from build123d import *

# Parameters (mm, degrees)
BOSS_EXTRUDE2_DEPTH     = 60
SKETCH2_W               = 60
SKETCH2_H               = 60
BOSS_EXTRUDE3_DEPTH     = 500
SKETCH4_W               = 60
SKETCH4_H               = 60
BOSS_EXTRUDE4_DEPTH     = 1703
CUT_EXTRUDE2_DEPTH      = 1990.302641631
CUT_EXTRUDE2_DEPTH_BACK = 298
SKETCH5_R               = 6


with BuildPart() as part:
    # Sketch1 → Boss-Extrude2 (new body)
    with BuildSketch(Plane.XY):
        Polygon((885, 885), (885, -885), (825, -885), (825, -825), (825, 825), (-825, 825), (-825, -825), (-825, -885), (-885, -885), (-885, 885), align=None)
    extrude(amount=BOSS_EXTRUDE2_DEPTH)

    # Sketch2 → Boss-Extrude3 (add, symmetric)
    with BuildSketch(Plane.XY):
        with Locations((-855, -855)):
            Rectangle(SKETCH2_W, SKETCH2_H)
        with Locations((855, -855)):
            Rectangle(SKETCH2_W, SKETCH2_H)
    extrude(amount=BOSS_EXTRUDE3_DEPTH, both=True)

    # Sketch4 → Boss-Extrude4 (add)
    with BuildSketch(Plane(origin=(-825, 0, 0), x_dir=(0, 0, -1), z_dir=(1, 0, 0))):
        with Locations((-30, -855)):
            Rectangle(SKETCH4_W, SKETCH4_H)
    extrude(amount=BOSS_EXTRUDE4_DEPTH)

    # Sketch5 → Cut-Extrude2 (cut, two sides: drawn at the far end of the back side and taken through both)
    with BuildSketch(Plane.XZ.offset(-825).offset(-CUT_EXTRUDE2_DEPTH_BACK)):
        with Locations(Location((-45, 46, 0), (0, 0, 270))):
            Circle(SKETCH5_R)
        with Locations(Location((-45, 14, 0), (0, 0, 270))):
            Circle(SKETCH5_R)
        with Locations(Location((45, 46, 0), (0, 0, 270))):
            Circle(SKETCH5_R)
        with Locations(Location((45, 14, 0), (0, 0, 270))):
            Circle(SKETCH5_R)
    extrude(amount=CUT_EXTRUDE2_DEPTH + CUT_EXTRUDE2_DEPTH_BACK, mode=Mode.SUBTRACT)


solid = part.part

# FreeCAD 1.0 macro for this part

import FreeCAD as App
import Part
import Sketcher
Q = App.Units.Quantity

doc = App.newDocument("Part")
body = doc.addObject("PartDesign::Body", "Body")

sketch1 = doc.addObject("Sketcher::SketchObject", "Sketch")
body.addObject(sketch1)
sketch1.AttachmentSupport = (doc.XY_Plane, [""])
sketch1.MapMode = "FlatFace"
sketch1.addGeometry([
    Part.LineSegment(App.Vector(885, -885, 0), App.Vector(885, 885, 0)),
    Part.LineSegment(App.Vector(885, 885, 0), App.Vector(-885, 885, 0)),
    Part.LineSegment(App.Vector(-885, 885, 0), App.Vector(-885, -885, 0)),
    Part.LineSegment(App.Vector(-885, -885, 0), App.Vector(-825, -885, 0)),
    Part.LineSegment(App.Vector(-825, -885, 0), App.Vector(-825, 825, 0)),
    Part.LineSegment(App.Vector(-825, 825, 0), App.Vector(825, 825, 0)),
    Part.LineSegment(App.Vector(825, 825, 0), App.Vector(825, -885, 0)),
    Part.LineSegment(App.Vector(825, -885, 0), App.Vector(885, -885, 0)),
], False)
sketch1.addConstraint([
    Sketcher.Constraint("Coincident", 0, 2, 1, 1),
    Sketcher.Constraint("Coincident", 1, 2, 2, 1),
    Sketcher.Constraint("Coincident", 2, 2, 3, 1),
    Sketcher.Constraint("Coincident", 3, 2, 4, 1),
    Sketcher.Constraint("Coincident", 4, 2, 5, 1),
    Sketcher.Constraint("Coincident", 5, 2, 6, 1),
    Sketcher.Constraint("Coincident", 6, 2, 7, 1),
    Sketcher.Constraint("Coincident", 7, 2, 0, 1),
    Sketcher.Constraint("Vertical", 0),
    Sketcher.Constraint("Horizontal", 1),
    Sketcher.Constraint("Vertical", 2),
    Sketcher.Constraint("Horizontal", 3),
    Sketcher.Constraint("Vertical", 4),
    Sketcher.Constraint("Horizontal", 5),
    Sketcher.Constraint("Vertical", 6),
    Sketcher.Constraint("Horizontal", 7),
    Sketcher.Constraint("Symmetric", 0, 2, 2, 2, -1, 1),
    Sketcher.Constraint("Symmetric", 3, 2, 6, 2, -2),
    Sketcher.Constraint("Equal", 1, 0),
    Sketcher.Constraint("DistanceX", 1, 2, 1, 1, Q("1770 mm")),
    Sketcher.Constraint("DistanceX", 3, 1, 3, 2, Q("60 mm")),
    Sketcher.Constraint("DistanceY", 4, 1, 4, 2, Q("1710 mm")),
])
pad1 = doc.addObject("PartDesign::Pad", "Pad")
body.addObject(pad1)
pad1.Profile = sketch1
pad1.Length = 60

sketch2 = doc.addObject("Sketcher::SketchObject", "Sketch001")
body.addObject(sketch2)
sketch2.AttachmentSupport = (doc.XY_Plane, [""])
sketch2.MapMode = "FlatFace"
sketch2.addGeometry([
    Part.LineSegment(App.Vector(-885, -825, 0), App.Vector(-885, -885, 0)),
    Part.LineSegment(App.Vector(-885, -885, 0), App.Vector(-825, -885, 0)),
    Part.LineSegment(App.Vector(-825, -885, 0), App.Vector(-825, -825, 0)),
    Part.LineSegment(App.Vector(-825, -825, 0), App.Vector(-885, -825, 0)),
    Part.LineSegment(App.Vector(825, -825, 0), App.Vector(825, -885, 0)),
    Part.LineSegment(App.Vector(825, -885, 0), App.Vector(885, -885, 0)),
    Part.LineSegment(App.Vector(885, -885, 0), App.Vector(885, -825, 0)),
    Part.LineSegment(App.Vector(885, -825, 0), App.Vector(825, -825, 0)),
], False)
sketch2.addConstraint([
    Sketcher.Constraint("Coincident", 0, 2, 1, 1),
    Sketcher.Constraint("Coincident", 1, 2, 2, 1),
    Sketcher.Constraint("Coincident", 2, 2, 3, 1),
    Sketcher.Constraint("Coincident", 3, 2, 0, 1),
    Sketcher.Constraint("Coincident", 4, 2, 5, 1),
    Sketcher.Constraint("Coincident", 5, 2, 6, 1),
    Sketcher.Constraint("Coincident", 6, 2, 7, 1),
    Sketcher.Constraint("Coincident", 7, 2, 4, 1),
    Sketcher.Constraint("Vertical", 0),
    Sketcher.Constraint("Horizontal", 1),
    Sketcher.Constraint("Vertical", 2),
    Sketcher.Constraint("Horizontal", 3),
    Sketcher.Constraint("Vertical", 4),
    Sketcher.Constraint("Horizontal", 5),
    Sketcher.Constraint("Vertical", 6),
    Sketcher.Constraint("Horizontal", 7),
    Sketcher.Constraint("Symmetric", 1, 2, 4, 2, -2),
    Sketcher.Constraint("Symmetric", 3, 2, 6, 2, -2),
    Sketcher.Constraint("Equal", 7, 0),
    Sketcher.Constraint("DistanceX", 1, 1, 1, 2, Q("60 mm")),
    Sketcher.Constraint("DistanceX", 0, 2, -1, 1, Q("885 mm")),
    Sketcher.Constraint("DistanceY", 0, 2, -1, 1, Q("885 mm")),
])
pad2 = doc.addObject("PartDesign::Pad", "Pad001")
body.addObject(pad2)
pad2.Profile = sketch2
pad2.Length = 1000
pad2.Midplane = True

sketch3 = doc.addObject("Sketcher::SketchObject", "Sketch002")
body.addObject(sketch3)
sketch3.AttachmentSupport = (doc.YZ_Plane, [""])
sketch3.MapMode = "FlatFace"
sketch3.AttachmentOffset = App.Placement(App.Vector(0, 0, -825), App.Rotation())
sketch3.addGeometry([
    Part.LineSegment(App.Vector(-825, 60, 0), App.Vector(-885, 60, 0)),
    Part.LineSegment(App.Vector(-885, 60, 0), App.Vector(-885, 0, 0)),
    Part.LineSegment(App.Vector(-885, 0, 0), App.Vector(-825, 0, 0)),
    Part.LineSegment(App.Vector(-825, 0, 0), App.Vector(-825, 60, 0)),
], False)
sketch3.addConstraint([
    Sketcher.Constraint("Coincident", 0, 2, 1, 1),
    Sketcher.Constraint("Coincident", 1, 2, 2, 1),
    Sketcher.Constraint("Coincident", 2, 2, 3, 1),
    Sketcher.Constraint("Coincident", 3, 2, 0, 1),
    Sketcher.Constraint("Horizontal", 0),
    Sketcher.Constraint("Vertical", 1),
    Sketcher.Constraint("Horizontal", 2),
    Sketcher.Constraint("Vertical", 3),
    Sketcher.Constraint("PointOnObject", 1, 2, -1),
    Sketcher.Constraint("Equal", 2, 1),
    Sketcher.Constraint("DistanceX", 0, 2, 0, 1, Q("60 mm")),
    Sketcher.Constraint("DistanceX", 0, 2, -1, 1, Q("885 mm")),
])
pad3 = doc.addObject("PartDesign::Pad", "Pad002")
body.addObject(pad3)
pad3.Profile = sketch3
pad3.Length = 1703

sketch4 = doc.addObject("Sketcher::SketchObject", "Sketch003")
body.addObject(sketch4)
sketch4.AttachmentSupport = (doc.XZ_Plane, [""])
sketch4.MapMode = "FlatFace"
sketch4.AttachmentOffset = App.Placement(App.Vector(0, 0, -825), App.Rotation())
sketch4.addGeometry([
    Part.Circle(App.Vector(-45, 46, 0), App.Vector(0, 0, 1), 6),
    Part.Circle(App.Vector(-45, 14, 0), App.Vector(0, 0, 1), 6),
    Part.Circle(App.Vector(45, 46, 0), App.Vector(0, 0, 1), 6),
    Part.Circle(App.Vector(45, 14, 0), App.Vector(0, 0, 1), 6),
], False)
sketch4.addConstraint([
    Sketcher.Constraint("Equal", 0, 1),
    Sketcher.Constraint("Equal", 1, 2),
    Sketcher.Constraint("Equal", 2, 3),
    Sketcher.Constraint("Symmetric", 0, 3, 2, 3, -2),
    Sketcher.Constraint("Symmetric", 1, 3, 3, 3, -2),
    Sketcher.Constraint("Vertical", 0, 3, 1, 3),
    Sketcher.Constraint("Diameter", 0, Q("12 mm")),
    Sketcher.Constraint("DistanceX", 0, 3, -1, 1, Q("45 mm")),
    Sketcher.Constraint("DistanceY", -1, 1, 0, 3, Q("46 mm")),
    Sketcher.Constraint("DistanceY", -1, 1, 1, 3, Q("14 mm")),
])
pocket1 = doc.addObject("PartDesign::Pocket", "Pocket")
body.addObject(pocket1)
pocket1.Profile = sketch4
pocket1.Type = "ThroughAll"
pocket1.Midplane = True

doc.recompute()
